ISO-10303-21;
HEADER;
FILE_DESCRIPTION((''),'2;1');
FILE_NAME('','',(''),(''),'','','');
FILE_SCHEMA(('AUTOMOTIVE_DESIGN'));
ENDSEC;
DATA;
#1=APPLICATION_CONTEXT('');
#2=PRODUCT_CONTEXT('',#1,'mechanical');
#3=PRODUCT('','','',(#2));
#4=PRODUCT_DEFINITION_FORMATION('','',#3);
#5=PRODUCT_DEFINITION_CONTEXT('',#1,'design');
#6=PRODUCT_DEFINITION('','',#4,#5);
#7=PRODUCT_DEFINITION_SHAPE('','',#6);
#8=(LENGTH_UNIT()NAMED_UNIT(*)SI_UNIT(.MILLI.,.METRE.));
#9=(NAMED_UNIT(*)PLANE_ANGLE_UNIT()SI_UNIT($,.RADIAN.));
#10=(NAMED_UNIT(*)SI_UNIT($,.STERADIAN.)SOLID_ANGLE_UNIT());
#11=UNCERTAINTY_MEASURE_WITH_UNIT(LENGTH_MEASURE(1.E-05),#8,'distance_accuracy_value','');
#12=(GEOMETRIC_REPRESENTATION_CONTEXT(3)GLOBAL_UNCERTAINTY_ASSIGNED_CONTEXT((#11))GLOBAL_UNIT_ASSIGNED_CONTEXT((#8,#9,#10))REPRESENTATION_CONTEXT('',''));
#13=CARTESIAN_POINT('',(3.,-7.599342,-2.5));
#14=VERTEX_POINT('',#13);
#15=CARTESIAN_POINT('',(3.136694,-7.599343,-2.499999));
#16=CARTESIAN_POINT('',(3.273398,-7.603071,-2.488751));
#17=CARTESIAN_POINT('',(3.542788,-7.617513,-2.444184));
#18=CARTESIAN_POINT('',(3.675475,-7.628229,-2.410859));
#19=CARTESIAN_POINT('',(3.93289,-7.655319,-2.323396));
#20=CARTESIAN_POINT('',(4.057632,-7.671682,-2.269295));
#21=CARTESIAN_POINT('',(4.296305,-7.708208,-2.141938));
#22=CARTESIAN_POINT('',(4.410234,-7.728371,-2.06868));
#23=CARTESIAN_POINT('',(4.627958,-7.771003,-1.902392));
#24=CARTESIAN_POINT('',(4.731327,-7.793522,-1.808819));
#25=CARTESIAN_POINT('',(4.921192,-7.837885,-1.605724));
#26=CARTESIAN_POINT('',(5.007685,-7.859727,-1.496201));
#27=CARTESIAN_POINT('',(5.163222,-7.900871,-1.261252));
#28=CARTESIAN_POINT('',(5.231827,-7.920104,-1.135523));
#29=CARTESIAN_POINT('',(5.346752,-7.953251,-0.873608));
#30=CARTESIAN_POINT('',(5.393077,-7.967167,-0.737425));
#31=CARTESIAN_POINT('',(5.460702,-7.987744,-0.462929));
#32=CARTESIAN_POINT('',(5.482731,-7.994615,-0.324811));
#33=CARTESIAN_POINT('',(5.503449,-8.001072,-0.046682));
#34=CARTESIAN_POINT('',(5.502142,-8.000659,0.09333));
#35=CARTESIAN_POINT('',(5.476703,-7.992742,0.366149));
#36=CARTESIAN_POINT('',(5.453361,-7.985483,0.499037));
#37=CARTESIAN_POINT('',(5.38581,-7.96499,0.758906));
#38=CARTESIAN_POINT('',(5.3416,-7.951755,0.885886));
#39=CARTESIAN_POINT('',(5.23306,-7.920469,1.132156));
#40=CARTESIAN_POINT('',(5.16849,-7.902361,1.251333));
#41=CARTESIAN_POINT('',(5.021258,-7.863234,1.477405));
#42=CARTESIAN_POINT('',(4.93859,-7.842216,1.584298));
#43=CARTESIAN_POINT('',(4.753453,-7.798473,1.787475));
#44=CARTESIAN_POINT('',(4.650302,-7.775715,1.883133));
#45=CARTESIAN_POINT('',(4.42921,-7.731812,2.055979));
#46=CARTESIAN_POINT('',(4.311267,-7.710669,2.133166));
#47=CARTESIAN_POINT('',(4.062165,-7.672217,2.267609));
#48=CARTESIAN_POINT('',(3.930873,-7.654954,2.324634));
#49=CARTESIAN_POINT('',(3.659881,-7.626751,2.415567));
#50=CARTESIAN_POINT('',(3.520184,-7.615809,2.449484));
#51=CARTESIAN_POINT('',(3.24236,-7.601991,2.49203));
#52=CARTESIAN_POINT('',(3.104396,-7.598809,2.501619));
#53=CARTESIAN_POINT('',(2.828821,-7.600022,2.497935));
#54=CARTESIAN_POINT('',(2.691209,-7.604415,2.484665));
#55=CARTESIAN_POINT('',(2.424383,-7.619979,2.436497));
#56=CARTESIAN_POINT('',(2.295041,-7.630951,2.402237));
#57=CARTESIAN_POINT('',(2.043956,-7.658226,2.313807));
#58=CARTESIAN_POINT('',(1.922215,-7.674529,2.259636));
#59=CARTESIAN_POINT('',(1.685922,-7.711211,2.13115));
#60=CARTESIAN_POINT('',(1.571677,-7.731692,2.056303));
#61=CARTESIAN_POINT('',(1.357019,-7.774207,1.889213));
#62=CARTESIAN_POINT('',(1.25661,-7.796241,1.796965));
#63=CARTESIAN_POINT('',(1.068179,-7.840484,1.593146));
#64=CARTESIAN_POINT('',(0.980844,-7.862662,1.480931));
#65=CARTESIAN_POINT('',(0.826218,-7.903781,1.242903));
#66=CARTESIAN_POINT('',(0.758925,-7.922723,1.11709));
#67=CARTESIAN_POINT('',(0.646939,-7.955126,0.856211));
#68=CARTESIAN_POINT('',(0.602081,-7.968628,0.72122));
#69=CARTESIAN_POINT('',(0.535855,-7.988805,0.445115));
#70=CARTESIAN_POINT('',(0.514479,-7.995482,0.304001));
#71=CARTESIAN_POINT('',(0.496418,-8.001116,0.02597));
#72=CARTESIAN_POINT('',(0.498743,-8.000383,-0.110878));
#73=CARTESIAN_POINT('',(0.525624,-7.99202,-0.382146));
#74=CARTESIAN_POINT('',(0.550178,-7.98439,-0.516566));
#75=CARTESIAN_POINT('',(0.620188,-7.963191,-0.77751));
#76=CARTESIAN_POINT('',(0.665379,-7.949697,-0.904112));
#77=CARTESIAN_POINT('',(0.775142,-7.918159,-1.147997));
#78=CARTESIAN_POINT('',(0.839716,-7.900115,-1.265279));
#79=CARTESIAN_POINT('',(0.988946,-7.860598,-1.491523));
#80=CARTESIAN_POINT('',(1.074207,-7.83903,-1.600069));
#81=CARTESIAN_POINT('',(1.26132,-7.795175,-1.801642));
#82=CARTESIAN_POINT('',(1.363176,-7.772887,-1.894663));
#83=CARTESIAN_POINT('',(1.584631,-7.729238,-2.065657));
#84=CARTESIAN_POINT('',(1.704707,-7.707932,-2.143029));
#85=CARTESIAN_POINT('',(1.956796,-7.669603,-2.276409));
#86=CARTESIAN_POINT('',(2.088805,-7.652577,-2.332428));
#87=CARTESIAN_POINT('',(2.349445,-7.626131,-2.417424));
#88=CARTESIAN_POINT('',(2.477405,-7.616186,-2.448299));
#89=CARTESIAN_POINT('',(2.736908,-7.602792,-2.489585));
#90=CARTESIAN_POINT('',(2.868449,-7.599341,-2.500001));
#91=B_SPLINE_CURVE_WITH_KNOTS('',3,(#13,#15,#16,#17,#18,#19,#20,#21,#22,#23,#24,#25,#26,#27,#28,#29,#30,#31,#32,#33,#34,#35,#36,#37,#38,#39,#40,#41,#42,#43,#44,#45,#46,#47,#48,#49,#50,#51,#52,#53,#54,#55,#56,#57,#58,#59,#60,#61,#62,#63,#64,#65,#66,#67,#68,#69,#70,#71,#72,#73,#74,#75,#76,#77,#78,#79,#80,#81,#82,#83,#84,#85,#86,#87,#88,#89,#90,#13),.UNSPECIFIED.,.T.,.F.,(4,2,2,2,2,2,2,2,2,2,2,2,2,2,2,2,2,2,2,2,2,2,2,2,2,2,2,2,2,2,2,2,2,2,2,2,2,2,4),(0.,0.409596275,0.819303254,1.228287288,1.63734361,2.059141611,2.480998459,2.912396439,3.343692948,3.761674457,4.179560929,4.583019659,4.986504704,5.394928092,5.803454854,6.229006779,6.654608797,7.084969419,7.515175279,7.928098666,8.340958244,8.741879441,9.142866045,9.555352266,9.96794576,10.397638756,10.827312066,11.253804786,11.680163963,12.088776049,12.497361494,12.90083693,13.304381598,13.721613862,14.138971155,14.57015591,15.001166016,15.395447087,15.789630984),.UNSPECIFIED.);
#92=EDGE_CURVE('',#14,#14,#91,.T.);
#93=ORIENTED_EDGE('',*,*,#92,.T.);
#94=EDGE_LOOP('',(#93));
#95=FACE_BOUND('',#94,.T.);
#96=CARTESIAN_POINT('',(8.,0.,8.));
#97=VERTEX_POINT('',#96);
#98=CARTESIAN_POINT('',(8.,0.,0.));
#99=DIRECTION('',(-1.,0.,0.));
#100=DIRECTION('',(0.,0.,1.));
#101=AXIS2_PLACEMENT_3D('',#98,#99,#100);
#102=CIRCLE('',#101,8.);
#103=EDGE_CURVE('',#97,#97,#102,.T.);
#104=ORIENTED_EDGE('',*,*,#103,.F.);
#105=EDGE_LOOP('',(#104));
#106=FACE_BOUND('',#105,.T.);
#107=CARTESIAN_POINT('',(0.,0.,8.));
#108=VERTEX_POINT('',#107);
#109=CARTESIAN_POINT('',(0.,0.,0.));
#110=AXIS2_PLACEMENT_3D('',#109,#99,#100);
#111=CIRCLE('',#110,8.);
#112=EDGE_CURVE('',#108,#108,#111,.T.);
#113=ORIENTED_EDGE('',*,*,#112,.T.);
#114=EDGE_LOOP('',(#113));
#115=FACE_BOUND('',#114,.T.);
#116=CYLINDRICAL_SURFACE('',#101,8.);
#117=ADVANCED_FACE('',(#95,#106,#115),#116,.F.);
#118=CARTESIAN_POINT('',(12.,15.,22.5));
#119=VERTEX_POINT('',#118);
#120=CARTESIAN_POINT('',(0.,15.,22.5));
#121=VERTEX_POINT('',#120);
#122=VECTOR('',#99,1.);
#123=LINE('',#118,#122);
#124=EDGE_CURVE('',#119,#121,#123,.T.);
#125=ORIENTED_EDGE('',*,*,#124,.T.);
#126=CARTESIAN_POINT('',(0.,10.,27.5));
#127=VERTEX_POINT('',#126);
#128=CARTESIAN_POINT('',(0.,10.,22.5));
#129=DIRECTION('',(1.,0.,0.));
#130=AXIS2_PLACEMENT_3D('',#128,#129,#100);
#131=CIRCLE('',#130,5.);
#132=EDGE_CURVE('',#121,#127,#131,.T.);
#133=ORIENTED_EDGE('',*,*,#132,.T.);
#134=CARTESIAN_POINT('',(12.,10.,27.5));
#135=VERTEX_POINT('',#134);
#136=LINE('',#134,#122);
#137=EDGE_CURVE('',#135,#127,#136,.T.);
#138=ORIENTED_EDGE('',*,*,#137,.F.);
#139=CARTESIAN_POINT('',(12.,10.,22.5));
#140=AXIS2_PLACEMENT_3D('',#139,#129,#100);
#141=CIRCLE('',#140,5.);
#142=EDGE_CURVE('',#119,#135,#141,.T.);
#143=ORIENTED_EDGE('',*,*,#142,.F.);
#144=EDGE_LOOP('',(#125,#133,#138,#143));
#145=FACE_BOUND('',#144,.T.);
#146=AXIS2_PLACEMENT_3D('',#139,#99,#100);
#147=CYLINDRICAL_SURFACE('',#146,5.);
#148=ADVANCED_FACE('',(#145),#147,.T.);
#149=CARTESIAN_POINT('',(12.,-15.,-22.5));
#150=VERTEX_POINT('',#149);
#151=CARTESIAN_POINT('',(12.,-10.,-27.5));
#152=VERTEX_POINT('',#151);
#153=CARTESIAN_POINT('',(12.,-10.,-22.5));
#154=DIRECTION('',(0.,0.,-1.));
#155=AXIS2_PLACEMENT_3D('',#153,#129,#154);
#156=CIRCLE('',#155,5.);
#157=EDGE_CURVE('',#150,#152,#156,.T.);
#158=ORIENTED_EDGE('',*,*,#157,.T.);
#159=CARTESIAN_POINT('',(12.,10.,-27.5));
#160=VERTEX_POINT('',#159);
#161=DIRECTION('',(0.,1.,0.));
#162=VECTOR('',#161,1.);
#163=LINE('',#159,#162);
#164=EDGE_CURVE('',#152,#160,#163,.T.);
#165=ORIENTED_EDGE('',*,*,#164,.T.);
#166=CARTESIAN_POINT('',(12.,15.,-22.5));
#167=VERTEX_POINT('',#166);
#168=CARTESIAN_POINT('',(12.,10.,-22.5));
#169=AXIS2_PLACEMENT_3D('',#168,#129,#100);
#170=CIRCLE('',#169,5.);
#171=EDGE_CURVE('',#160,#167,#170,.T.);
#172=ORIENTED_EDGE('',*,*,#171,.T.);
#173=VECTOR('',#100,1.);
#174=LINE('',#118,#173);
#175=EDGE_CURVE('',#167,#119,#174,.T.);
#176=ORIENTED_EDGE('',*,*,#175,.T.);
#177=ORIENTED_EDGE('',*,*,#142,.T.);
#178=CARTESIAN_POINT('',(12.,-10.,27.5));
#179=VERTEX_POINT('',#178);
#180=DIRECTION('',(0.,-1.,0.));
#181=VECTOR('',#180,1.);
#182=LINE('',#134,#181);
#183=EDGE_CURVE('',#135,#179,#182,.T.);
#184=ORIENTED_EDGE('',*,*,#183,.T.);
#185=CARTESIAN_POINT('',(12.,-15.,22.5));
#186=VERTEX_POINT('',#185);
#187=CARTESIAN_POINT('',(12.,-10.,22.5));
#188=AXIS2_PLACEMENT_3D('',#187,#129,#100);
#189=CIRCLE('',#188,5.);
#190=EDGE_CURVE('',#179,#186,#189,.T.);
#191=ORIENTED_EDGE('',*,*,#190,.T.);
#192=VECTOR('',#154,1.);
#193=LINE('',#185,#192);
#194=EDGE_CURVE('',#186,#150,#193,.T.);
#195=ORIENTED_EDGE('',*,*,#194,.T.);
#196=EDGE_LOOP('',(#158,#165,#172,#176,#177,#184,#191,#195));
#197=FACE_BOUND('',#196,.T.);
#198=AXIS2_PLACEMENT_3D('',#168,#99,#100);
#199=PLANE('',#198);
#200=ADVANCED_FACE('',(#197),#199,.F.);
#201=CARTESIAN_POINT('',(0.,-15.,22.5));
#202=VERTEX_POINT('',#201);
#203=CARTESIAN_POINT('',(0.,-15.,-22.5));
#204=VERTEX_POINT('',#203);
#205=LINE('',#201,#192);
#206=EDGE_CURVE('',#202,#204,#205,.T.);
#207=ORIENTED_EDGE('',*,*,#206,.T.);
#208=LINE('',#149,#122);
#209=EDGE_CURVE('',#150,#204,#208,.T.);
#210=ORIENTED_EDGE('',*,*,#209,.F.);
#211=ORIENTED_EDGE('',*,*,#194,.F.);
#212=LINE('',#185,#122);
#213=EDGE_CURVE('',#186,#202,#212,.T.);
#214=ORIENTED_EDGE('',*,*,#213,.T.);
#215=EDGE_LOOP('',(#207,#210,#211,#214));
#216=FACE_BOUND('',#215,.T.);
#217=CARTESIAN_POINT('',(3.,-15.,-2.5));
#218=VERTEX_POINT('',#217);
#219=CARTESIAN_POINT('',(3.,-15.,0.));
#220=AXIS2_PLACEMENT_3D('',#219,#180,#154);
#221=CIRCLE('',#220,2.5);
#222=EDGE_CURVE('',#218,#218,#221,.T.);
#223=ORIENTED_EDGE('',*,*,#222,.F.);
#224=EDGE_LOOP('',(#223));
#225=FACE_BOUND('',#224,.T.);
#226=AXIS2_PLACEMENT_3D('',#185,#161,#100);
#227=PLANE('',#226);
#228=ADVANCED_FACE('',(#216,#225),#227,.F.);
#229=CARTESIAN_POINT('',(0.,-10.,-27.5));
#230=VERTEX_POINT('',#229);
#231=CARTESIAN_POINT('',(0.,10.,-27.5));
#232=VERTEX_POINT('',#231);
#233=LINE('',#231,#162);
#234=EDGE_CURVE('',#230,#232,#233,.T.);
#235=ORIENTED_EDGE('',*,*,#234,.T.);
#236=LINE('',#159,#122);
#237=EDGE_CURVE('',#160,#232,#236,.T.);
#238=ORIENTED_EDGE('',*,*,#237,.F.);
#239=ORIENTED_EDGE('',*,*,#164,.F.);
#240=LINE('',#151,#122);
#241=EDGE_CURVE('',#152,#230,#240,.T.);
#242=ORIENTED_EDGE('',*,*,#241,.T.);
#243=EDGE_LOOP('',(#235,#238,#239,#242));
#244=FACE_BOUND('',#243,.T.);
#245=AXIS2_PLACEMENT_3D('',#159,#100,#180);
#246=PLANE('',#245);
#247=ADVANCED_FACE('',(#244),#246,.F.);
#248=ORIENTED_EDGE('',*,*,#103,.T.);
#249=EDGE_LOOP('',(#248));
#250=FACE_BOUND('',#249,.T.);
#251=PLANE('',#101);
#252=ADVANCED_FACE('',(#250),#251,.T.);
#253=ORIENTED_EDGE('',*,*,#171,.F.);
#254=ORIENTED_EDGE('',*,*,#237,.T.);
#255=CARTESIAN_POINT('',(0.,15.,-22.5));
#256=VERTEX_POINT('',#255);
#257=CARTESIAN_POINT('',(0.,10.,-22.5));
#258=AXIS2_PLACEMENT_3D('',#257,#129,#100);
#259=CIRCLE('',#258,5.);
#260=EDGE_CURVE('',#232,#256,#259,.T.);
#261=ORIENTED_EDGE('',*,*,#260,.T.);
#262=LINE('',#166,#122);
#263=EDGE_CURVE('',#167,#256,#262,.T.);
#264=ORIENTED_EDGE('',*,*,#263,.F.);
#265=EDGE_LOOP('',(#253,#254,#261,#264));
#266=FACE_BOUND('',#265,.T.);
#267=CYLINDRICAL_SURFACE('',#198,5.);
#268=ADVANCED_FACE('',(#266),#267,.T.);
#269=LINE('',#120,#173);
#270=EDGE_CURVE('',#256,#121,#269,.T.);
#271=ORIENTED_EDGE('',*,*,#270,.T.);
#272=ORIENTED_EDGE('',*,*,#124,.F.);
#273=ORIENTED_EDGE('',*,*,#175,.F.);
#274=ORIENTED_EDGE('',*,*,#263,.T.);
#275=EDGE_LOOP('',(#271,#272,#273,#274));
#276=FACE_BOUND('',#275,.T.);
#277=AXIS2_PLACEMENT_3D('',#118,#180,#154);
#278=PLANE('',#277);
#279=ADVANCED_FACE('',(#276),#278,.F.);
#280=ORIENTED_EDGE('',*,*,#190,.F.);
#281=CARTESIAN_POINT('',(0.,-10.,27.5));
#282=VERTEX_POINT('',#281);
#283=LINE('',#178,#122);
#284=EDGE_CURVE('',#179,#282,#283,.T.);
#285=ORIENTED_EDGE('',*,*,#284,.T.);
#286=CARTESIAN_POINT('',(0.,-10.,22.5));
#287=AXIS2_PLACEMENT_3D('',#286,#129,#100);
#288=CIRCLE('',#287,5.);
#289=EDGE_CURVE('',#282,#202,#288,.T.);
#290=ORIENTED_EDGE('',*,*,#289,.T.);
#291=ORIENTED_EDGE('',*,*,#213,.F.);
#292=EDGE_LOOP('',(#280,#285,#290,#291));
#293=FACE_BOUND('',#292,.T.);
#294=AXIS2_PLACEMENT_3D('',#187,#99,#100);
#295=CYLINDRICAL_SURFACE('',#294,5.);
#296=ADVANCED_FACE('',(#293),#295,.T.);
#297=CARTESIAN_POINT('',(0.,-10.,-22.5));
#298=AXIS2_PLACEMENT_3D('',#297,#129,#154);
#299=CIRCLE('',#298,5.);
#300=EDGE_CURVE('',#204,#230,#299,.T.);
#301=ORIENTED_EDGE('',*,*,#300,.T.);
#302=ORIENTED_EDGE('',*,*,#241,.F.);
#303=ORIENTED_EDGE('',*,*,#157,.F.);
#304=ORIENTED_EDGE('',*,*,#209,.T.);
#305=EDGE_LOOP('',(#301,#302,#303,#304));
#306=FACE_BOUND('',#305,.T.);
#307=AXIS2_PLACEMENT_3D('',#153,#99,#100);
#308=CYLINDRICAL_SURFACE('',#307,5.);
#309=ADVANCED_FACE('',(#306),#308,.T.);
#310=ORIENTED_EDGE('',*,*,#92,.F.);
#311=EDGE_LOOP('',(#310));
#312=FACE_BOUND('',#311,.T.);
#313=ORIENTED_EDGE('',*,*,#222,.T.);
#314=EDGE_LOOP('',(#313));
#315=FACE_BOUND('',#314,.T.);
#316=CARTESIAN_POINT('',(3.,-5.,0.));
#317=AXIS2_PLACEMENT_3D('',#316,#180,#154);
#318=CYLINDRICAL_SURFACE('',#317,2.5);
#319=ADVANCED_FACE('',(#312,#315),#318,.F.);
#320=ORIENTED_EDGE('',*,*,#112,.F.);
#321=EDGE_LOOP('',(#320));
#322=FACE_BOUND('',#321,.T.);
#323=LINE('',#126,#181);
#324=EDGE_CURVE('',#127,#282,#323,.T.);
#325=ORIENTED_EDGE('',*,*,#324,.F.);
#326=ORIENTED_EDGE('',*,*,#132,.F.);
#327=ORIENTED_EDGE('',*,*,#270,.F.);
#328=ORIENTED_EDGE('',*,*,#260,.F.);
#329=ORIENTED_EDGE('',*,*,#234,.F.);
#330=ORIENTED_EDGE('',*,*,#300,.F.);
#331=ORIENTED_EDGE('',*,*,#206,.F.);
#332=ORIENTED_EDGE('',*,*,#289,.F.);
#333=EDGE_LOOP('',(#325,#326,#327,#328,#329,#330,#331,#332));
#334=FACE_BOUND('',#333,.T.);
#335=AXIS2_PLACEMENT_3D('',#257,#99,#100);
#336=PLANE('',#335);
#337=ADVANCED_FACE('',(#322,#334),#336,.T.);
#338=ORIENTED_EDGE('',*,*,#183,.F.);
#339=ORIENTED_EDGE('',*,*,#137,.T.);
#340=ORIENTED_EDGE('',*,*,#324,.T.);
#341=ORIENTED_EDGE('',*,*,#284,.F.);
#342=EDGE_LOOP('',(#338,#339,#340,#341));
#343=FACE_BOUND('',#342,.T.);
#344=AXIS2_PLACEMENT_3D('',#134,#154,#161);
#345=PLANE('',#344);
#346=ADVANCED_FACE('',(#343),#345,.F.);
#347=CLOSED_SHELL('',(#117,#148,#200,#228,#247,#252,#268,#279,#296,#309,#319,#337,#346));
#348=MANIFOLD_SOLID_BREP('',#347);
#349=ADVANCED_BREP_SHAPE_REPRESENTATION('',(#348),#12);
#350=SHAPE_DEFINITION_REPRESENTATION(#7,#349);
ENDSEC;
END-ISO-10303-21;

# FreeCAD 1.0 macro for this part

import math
import FreeCAD as App
import Part
import Sketcher
from FreeCAD import Vector

doc = App.newDocument("Part")
params = doc.addObject("Spreadsheet::Sheet", "Params")
for row, (alias, value) in enumerate([
    ("sketch1_radius", "5 mm"),
    ("sketch1_width", "20 mm"),
    ("sketch1_height", "45 mm"),
    ("pad1_length", "12 mm"),
    ("sketch2_diameter", "16 mm"),
    ("pocket1_length", "8 mm"),
    ("sketch3_diameter", "5 mm"),
    ("pocket2_length", "10 mm"),
], start=1):
    params.set(f"A{row}", alias)
    params.set(f"B{row}", "=" + value)
    params.setAlias(f"B{row}", alias)

body = doc.addObject("PartDesign::Body", "Body")

sketch1 = body.newObject("Sketcher::SketchObject", "Sketch")
sketch1.AttachmentSupport = (doc.getObject("YZ_Plane"), [""])
sketch1.MapMode = "FlatFace"
sketch1.addGeometry(Part.LineSegment(Vector(15, -22.5, 0), Vector(15, 22.5, 0)), False)
sketch1.addGeometry(Part.ArcOfCircle(Part.Circle(Vector(10, 22.5, 0), Vector(0, 0, 1), 5), math.radians(0), math.radians(90)), False)
sketch1.addGeometry(Part.LineSegment(Vector(10, 27.5, 0), Vector(-10, 27.5, 0)), False)
sketch1.addGeometry(Part.ArcOfCircle(Part.Circle(Vector(-10, 22.5, 0), Vector(0, 0, 1), 5), math.radians(90), math.radians(180)), False)
sketch1.addGeometry(Part.LineSegment(Vector(-15, 22.5, 0), Vector(-15, -22.5, 0)), False)
sketch1.addGeometry(Part.ArcOfCircle(Part.Circle(Vector(-10, -22.5, 0), Vector(0, 0, 1), 5), math.radians(180), math.radians(270)), False)
sketch1.addGeometry(Part.LineSegment(Vector(-10, -27.5, 0), Vector(10, -27.5, 0)), False)
sketch1.addGeometry(Part.ArcOfCircle(Part.Circle(Vector(10, -22.5, 0), Vector(0, 0, 1), 5), math.radians(-90), math.radians(0)), False)
sketch1.addConstraint(Sketcher.Constraint("Tangent", 0, 2, 1, 1))
sketch1.addConstraint(Sketcher.Constraint("Tangent", 1, 2, 2, 1))
sketch1.addConstraint(Sketcher.Constraint("Tangent", 2, 2, 3, 1))
sketch1.addConstraint(Sketcher.Constraint("Tangent", 3, 2, 4, 1))
sketch1.addConstraint(Sketcher.Constraint("Tangent", 4, 2, 5, 1))
sketch1.addConstraint(Sketcher.Constraint("Tangent", 5, 2, 6, 1))
sketch1.addConstraint(Sketcher.Constraint("Tangent", 6, 2, 7, 1))
sketch1.addConstraint(Sketcher.Constraint("Tangent", 7, 2, 0, 1))
sketch1.addConstraint(Sketcher.Constraint("Vertical", 0))
sketch1.addConstraint(Sketcher.Constraint("Horizontal", 2))
sketch1.addConstraint(Sketcher.Constraint("Vertical", 4))
sketch1.addConstraint(Sketcher.Constraint("Horizontal", 6))
sketch1.addConstraint(Sketcher.Constraint("Equal", 1, 3))
sketch1.addConstraint(Sketcher.Constraint("Equal", 3, 5))
sketch1.addConstraint(Sketcher.Constraint("Equal", 5, 7))
sketch1.addConstraint(Sketcher.Constraint("Symmetric", 1, 3, 5, 3, -1, 1))
sketch1.addConstraint(Sketcher.Constraint("Radius", 1, 5.0))
sketch1.addConstraint(Sketcher.Constraint("DistanceX", 2, 2, 2, 1, 20.0))
sketch1.addConstraint(Sketcher.Constraint("DistanceY", 0, 1, 0, 2, 45.0))
sketch1.setExpression("Constraints[16]", "Params.sketch1_radius")
sketch1.setExpression("Constraints[17]", "Params.sketch1_width")
sketch1.setExpression("Constraints[18]", "Params.sketch1_height")
pad1 = body.newObject("PartDesign::Pad", "Pad")
pad1.Profile = sketch1
pad1.setExpression("Length", "Params.pad1_length")

sketch2 = body.newObject("Sketcher::SketchObject", "Sketch001")
sketch2.AttachmentSupport = (doc.getObject("YZ_Plane"), [""])
sketch2.MapMode = "FlatFace"
sketch2.addGeometry(Part.Circle(Vector(0, 0, 0), Vector(0, 0, 1), 8), False)
sketch2.addConstraint(Sketcher.Constraint("Coincident", 0, 3, -1, 1))
sketch2.addConstraint(Sketcher.Constraint("Diameter", 0, 16.0))
sketch2.setExpression("Constraints[1]", "Params.sketch2_diameter")
pocket1 = body.newObject("PartDesign::Pocket", "Pocket")
pocket1.Profile = sketch2
pocket1.setExpression("Length", "Params.pocket1_length")
pocket1.Reversed = True

sketch3 = body.newObject("Sketcher::SketchObject", "Sketch002")
sketch3.AttachmentSupport = (doc.getObject("XZ_Plane"), [""])
sketch3.MapMode = "FlatFace"
sketch3.AttachmentOffset = App.Placement(Vector(0, 0, 15), App.Rotation())
sketch3.addGeometry(Part.Circle(Vector(3, 0, 0), Vector(0, 0, 1), 2.5), False)
sketch3.addConstraint(Sketcher.Constraint("PointOnObject", 0, 3, -1))
sketch3.addConstraint(Sketcher.Constraint("Diameter", 0, 5.0))
sketch3.addConstraint(Sketcher.Constraint("DistanceX", -1, 1, 0, 3, 3.0))
sketch3.setExpression("Constraints[1]", "Params.sketch3_diameter")
pocket2 = body.newObject("PartDesign::Pocket", "Pocket001")
pocket2.Profile = sketch3
pocket2.setExpression("Length", "Params.pocket2_length")

doc.recompute()
